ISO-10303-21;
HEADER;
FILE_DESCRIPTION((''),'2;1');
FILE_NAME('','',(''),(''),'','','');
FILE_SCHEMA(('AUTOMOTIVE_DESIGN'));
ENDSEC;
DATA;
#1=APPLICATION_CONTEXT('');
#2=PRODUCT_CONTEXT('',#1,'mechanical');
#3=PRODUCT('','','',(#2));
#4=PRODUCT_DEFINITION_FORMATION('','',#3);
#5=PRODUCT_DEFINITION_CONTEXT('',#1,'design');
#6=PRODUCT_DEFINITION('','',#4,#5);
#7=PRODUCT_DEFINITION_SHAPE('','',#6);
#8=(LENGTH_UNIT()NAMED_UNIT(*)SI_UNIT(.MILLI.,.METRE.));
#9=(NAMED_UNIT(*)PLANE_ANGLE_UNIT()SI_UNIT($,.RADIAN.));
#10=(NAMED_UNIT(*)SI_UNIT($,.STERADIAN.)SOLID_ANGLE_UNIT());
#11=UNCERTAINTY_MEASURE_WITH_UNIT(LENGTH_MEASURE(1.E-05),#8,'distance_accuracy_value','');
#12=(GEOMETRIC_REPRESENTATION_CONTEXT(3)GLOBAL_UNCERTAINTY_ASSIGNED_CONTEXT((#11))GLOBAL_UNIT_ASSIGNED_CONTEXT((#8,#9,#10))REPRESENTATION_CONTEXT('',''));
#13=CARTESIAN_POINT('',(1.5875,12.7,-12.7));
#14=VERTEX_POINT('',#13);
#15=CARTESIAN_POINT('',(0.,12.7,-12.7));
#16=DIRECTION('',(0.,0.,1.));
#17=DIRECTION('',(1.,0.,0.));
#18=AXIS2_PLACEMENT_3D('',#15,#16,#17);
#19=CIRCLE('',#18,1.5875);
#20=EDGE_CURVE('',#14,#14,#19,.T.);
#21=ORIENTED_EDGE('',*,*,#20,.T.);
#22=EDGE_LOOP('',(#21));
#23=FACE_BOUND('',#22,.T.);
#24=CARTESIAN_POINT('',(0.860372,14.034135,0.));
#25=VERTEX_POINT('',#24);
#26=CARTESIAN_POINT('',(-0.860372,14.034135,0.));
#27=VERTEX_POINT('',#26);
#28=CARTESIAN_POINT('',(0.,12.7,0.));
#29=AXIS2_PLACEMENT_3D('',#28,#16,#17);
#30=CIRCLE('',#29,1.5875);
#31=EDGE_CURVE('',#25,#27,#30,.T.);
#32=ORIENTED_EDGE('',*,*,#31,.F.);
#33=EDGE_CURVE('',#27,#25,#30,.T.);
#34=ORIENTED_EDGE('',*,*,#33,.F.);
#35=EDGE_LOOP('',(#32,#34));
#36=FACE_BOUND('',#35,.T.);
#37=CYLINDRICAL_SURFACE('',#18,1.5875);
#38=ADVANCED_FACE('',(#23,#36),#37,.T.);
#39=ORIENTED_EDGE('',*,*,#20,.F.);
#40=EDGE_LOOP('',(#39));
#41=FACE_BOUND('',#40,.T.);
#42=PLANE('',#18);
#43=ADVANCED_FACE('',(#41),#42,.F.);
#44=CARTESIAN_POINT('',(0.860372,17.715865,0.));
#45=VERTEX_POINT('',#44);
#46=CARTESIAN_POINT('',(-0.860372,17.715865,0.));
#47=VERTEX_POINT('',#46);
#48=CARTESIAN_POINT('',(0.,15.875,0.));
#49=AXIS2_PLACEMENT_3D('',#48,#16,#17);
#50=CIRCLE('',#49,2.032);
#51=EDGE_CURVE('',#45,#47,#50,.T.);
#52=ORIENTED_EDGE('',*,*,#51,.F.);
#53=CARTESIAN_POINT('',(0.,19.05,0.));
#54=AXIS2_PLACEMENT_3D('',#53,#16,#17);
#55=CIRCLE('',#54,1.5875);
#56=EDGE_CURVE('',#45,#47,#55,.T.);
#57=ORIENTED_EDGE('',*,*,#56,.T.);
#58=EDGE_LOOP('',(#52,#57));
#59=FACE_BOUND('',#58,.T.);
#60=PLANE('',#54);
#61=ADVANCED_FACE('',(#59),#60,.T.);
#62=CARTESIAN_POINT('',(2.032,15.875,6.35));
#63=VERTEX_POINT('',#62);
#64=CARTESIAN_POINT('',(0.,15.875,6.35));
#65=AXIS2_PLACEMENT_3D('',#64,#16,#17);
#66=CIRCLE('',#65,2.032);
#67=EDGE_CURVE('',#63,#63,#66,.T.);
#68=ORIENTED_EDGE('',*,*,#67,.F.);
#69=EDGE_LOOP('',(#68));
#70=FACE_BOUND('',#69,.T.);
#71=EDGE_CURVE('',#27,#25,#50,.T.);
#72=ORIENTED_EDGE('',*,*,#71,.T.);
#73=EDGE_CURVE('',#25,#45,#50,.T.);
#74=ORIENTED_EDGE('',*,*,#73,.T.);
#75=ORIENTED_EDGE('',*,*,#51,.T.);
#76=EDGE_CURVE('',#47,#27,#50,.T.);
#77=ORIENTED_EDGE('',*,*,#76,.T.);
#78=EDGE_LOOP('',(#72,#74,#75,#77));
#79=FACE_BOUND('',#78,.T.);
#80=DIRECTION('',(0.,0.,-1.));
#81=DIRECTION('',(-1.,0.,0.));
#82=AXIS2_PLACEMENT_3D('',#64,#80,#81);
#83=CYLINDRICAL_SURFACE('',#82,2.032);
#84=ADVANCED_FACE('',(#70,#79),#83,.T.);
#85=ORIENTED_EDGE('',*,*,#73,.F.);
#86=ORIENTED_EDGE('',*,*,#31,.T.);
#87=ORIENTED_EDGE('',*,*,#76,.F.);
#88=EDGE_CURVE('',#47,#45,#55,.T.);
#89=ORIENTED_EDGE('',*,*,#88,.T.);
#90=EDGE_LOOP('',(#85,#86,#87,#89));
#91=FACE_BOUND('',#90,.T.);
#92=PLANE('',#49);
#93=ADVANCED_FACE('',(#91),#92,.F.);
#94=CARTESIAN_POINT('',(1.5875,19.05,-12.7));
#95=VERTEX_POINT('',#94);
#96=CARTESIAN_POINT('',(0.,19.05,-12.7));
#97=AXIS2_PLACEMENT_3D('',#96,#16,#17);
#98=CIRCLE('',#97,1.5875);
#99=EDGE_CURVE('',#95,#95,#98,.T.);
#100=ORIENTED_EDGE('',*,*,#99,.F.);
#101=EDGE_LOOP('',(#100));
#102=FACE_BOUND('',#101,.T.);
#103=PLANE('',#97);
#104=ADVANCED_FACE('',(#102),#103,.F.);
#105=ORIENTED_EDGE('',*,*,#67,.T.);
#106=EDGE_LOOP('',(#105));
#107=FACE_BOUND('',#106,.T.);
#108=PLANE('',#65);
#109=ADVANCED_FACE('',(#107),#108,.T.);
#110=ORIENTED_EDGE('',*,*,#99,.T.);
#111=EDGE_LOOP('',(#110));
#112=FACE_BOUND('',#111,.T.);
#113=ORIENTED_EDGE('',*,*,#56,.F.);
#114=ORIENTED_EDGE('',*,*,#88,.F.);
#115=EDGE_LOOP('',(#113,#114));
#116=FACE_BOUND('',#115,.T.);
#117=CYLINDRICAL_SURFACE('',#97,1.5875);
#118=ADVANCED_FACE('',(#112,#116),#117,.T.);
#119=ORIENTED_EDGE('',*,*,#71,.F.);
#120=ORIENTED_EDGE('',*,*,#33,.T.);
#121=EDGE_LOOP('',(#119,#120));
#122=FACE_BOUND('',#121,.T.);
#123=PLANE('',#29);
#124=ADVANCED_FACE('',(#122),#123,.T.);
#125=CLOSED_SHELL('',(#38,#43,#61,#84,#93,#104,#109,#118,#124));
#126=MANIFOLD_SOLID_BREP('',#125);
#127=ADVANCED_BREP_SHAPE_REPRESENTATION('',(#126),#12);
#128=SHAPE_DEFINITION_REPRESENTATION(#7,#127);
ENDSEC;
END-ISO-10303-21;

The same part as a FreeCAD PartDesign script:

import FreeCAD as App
import Part
import Sketcher
from FreeCAD import Vector
Q = App.Units.Quantity

doc = App.newDocument("Part")
body = doc.addObject("PartDesign::Body", "Body")

# Sketch on XY plane
sketch1 = doc.addObject("Sketcher::SketchObject", "Sketch")
body.addObject(sketch1)
sketch1.AttachmentSupport = (doc.XY_Plane, [""])
sketch1.MapMode = "FlatFace"
sketch1.addGeometry(Part.Circle(Vector(0, 12.7, 0), Vector(0, 0, 1), 1.6), False)
sketch1.addConstraint([
    Sketcher.Constraint("PointOnObject", 0, 3, -2),
    Sketcher.Constraint("Diameter", 0, Q("0.125 in")),
    Sketcher.Constraint("DistanceY", -1, 1, 0, 3, Q("0.5 in")),
])
pad1 = doc.addObject("PartDesign::Pad", "Pad")
body.addObject(pad1)
pad1.Profile = sketch1
pad1.Length = Q("0.5 in")
pad1.Reversed = True
body2 = doc.addObject("PartDesign::Body", "Body001")

# Sketch on XY plane
sketch2 = doc.addObject("Sketcher::SketchObject", "Sketch001")
body2.addObject(sketch2)
sketch2.AttachmentSupport = (doc.getObject("XY_Plane001"), [""])
sketch2.MapMode = "FlatFace"
sketch2.addGeometry(Part.Circle(Vector(0, 19.1, 0), Vector(0, 0, 1), 1.6), False)
sketch2.addConstraint([
    Sketcher.Constraint("PointOnObject", 0, 3, -2),
    Sketcher.Constraint("Diameter", 0, Q("0.125 in")),
    Sketcher.Constraint("DistanceY", -1, 1, 0, 3, Q("0.75 in")),
])
pad2 = doc.addObject("PartDesign::Pad", "Pad001")
body2.addObject(pad2)
pad2.Profile = sketch2
pad2.Length = Q("0.5 in")
pad2.Reversed = True
body.AllowCompound = True
doc.recompute()

boolean = doc.addObject("PartDesign::Boolean", "Boolean")
body.addObject(boolean)
boolean.Type = "Fuse"
boolean.addObjects([body2])

# Sketch on XY plane
sketch3 = doc.addObject("Sketcher::SketchObject", "Sketch002")
body.addObject(sketch3)
sketch3.AttachmentSupport = (doc.XY_Plane, [""])
sketch3.MapMode = "FlatFace"
sketch3.addGeometry(Part.Circle(Vector(0, 15.9, 0), Vector(0, 0, 1), 2), False)
sketch3.addConstraint([
    Sketcher.Constraint("PointOnObject", 0, 3, -2),
    Sketcher.Constraint("Diameter", 0, Q("0.16 in")),
    Sketcher.Constraint("DistanceY", -1, 1, 0, 3, Q("0.625 in")),
])
pad3 = doc.addObject("PartDesign::Pad", "Pad002")
body.addObject(pad3)
pad3.Profile = sketch3
pad3.Length = Q("0.25 in")

doc.recompute()
